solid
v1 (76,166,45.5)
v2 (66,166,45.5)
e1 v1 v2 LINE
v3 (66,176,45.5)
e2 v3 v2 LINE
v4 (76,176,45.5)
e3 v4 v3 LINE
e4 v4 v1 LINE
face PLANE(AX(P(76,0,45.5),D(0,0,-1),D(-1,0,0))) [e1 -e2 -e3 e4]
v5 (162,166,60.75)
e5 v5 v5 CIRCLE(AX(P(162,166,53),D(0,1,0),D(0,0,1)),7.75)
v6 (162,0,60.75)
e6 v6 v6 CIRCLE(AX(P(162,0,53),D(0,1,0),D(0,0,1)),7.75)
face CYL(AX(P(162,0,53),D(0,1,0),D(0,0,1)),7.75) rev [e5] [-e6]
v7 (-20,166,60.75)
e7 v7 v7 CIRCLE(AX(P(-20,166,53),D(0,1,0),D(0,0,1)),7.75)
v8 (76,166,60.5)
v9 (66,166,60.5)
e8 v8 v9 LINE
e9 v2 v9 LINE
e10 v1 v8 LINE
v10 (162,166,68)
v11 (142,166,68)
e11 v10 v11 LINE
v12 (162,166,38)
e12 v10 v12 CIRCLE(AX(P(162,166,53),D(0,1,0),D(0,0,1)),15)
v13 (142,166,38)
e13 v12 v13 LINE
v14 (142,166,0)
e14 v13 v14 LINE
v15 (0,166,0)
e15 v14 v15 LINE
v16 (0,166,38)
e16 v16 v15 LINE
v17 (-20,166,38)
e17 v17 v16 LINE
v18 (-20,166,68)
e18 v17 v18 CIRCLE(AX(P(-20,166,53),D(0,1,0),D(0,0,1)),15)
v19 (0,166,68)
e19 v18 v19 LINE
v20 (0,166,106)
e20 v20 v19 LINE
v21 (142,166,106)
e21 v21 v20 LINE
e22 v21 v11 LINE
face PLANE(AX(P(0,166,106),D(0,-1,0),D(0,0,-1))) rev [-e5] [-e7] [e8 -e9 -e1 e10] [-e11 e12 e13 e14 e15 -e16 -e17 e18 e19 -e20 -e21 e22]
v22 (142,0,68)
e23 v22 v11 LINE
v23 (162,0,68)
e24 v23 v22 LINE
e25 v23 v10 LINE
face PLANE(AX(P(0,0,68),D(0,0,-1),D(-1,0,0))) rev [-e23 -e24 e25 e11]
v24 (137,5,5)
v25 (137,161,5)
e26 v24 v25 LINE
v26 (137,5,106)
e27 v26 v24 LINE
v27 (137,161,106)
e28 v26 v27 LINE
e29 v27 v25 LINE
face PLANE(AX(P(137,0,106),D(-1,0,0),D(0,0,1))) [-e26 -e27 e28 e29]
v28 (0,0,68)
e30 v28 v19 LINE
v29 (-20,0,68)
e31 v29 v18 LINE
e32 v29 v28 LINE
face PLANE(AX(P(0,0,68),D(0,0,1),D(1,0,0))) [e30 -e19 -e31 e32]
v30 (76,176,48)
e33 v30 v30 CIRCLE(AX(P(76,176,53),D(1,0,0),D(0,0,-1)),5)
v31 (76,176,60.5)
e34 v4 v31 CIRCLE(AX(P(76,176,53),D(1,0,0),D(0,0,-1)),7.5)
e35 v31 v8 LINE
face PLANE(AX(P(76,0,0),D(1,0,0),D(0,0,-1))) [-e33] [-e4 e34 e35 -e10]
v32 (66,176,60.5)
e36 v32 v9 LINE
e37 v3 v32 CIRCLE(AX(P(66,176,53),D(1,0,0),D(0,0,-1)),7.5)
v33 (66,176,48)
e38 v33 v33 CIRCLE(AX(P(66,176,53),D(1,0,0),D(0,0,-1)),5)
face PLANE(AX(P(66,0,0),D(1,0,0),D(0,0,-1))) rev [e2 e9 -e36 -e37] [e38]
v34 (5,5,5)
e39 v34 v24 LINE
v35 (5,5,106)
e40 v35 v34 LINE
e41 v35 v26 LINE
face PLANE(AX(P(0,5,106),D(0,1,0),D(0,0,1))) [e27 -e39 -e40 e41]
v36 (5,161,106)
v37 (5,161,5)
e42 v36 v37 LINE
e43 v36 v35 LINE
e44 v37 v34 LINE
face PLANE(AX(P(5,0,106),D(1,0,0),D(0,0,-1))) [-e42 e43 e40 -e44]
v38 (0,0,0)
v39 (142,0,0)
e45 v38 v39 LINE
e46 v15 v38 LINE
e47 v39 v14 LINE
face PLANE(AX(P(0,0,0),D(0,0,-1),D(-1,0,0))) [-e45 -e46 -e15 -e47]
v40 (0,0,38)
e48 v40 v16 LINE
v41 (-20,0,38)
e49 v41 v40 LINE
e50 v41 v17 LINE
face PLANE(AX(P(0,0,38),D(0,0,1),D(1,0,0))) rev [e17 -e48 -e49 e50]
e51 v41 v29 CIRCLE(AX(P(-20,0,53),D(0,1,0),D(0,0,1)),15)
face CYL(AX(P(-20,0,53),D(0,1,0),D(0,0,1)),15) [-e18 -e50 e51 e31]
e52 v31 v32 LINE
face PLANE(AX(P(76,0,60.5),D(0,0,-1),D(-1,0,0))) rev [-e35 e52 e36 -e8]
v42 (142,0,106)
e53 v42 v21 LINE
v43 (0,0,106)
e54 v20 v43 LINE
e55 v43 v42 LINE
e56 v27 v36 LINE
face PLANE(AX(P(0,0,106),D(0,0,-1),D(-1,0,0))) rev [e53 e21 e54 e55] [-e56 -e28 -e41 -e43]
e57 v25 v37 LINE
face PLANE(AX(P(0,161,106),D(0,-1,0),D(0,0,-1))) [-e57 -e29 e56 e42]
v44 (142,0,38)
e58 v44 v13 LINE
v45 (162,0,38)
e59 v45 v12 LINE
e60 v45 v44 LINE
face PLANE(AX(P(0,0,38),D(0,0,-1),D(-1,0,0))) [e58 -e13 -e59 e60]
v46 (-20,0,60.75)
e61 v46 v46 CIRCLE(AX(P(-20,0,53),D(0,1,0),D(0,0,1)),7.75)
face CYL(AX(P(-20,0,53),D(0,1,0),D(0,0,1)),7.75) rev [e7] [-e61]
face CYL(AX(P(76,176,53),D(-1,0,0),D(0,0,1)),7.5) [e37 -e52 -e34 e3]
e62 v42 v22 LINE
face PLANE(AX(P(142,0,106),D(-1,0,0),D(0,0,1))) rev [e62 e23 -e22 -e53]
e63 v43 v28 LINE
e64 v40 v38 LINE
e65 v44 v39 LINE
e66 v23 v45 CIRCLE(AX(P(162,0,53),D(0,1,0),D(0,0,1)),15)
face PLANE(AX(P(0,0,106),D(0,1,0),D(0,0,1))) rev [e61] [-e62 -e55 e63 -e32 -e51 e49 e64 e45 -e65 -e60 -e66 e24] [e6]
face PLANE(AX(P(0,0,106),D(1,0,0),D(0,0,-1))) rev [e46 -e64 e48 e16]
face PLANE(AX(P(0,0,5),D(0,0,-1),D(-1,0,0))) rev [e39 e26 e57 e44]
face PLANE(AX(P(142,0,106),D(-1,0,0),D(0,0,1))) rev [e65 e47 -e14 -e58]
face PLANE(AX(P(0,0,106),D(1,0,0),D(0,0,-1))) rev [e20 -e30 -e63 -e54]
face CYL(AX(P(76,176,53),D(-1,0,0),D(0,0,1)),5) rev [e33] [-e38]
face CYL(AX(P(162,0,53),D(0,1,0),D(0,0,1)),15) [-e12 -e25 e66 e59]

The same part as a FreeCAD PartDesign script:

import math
import FreeCAD as App
import Part
import Sketcher

V = App.Vector
Q = App.Units.Quantity


def faces_at(feature, points):
    """Names of the faces that lie closest to the given points."""
    faces = feature.Shape.Faces
    near = lambda p: min(range(len(faces)), key=lambda i: faces[i].distToShape(Part.Vertex(*p))[0])
    return sorted({f"Face{near(p) + 1}" for p in points})

doc = App.newDocument("Part")
body = doc.addObject("PartDesign::Body", "Body")

# Sketch on XY plane
sketch1 = body.newObject("Sketcher::SketchObject", "Sketch")
sketch1.AttachmentSupport = (doc.getObject("XY_Plane"), [""])
sketch1.MapMode = "FlatFace"
sketch1.addGeometry([
    Part.LineSegment(V(0, 166, 0), V(0, 0, 0)),
    Part.LineSegment(V(0, 0, 0), V(142, 0, 0)),
    Part.LineSegment(V(142, 0, 0), V(142, 166, 0)),
    Part.LineSegment(V(142, 166, 0), V(0, 166, 0)),
], False)
sketch1.addConstraint([
    Sketcher.Constraint("Coincident", 0, 2, 1, 1),
    Sketcher.Constraint("Coincident", 1, 2, 2, 1),
    Sketcher.Constraint("Coincident", 2, 2, 3, 1),
    Sketcher.Constraint("Coincident", 3, 2, 0, 1),
    Sketcher.Constraint("Vertical", 0),
    Sketcher.Constraint("Horizontal", 1),
    Sketcher.Constraint("Vertical", 2),
    Sketcher.Constraint("Horizontal", 3),
    Sketcher.Constraint("Coincident", 0, 2, -1, 1),
    Sketcher.Constraint("DistanceX", 1, 1, 1, 2, Q("142 mm")),
    Sketcher.Constraint("DistanceY", 0, 2, 0, 1, Q("166 mm")),
])
pad1 = body.newObject("PartDesign::Pad", "Pad")
pad1.Profile = sketch1
pad1.Length = 106
doc.recompute()

thickness = body.newObject("PartDesign::Thickness", "Thickness")
thickness.Base = (pad1, faces_at(pad1, [(71, 83, 106)]))
thickness.Value = 5
thickness.Reversed = True
thickness.Join = "Intersection"

# Sketch on XZ plane
sketch2 = body.newObject("Sketcher::SketchObject", "Sketch001")
sketch2.AttachmentSupport = (doc.getObject("XZ_Plane"), [""])
sketch2.MapMode = "FlatFace"
sketch2.AttachmentOffset = App.Placement(V(0, 0, -166), App.Rotation())
sketch2.addGeometry([
    Part.ArcOfCircle(Part.Circle(V(-20, 53, 0), V(0, 0, 1), 15), math.radians(90), math.radians(270)),  # 0
    Part.LineSegment(V(-20, 68, 0), V(0, 68, 0)),  # 1
    Part.LineSegment(V(0, 68, 0), V(0, 38, 0)),  # 2
    Part.LineSegment(V(0, 38, 0), V(-20, 38, 0)),  # 3
    Part.Circle(V(-20, 53, 0), V(0, 0, 1), 7.75),  # 4
    Part.LineSegment(V(162, 38, 0), V(142, 38, 0)),  # 5
    Part.LineSegment(V(142, 38, 0), V(142, 68, 0)),  # 6
    Part.LineSegment(V(142, 68, 0), V(162, 68, 0)),  # 7
    Part.ArcOfCircle(Part.Circle(V(162, 53, 0), V(0, 0, 1), 15), math.radians(-90), math.radians(90)),  # 8
    Part.Circle(V(162, 53, 0), V(0, 0, 1), 7.75),  # 9
], False)
sketch2.addConstraint([
    Sketcher.Constraint("Tangent", 0, 1, 1, 1),
    Sketcher.Constraint("Coincident", 1, 2, 2, 1),
    Sketcher.Constraint("Coincident", 2, 2, 3, 1),
    Sketcher.Constraint("Tangent", 3, 2, 0, 2),
    Sketcher.Constraint("Coincident", 5, 2, 6, 1),
    Sketcher.Constraint("Coincident", 6, 2, 7, 1),
    Sketcher.Constraint("Tangent", 7, 2, 8, 2),
    Sketcher.Constraint("Tangent", 8, 1, 5, 1),
    Sketcher.Constraint("Horizontal", 1),
    Sketcher.Constraint("Vertical", 2),
    Sketcher.Constraint("Horizontal", 3),
    Sketcher.Constraint("Horizontal", 5),
    Sketcher.Constraint("Vertical", 6),
    Sketcher.Constraint("Horizontal", 7),
    Sketcher.Constraint("Coincident", 4, 3, 0, 3),
    Sketcher.Constraint("Coincident", 9, 3, 8, 3),
    Sketcher.Constraint("Equal", 0, 8),
    Sketcher.Constraint("Equal", 4, 9),
    Sketcher.Constraint("PointOnObject", 1, 2, -2),
    Sketcher.Constraint("Horizontal", 4, 3, 8, 3),
    Sketcher.Constraint("Equal", 3, 5),
    Sketcher.Constraint("Radius", 0, Q("15 mm")),
    Sketcher.Constraint("Diameter", 4, Q("15.5 mm")),
    Sketcher.Constraint("DistanceX", 1, 1, 1, 2, Q("20 mm")),
    Sketcher.Constraint("DistanceY", -1, 1, 0, 3, Q("53 mm")),
    Sketcher.Constraint("DistanceX", -1, 1, 8, 3, Q("162 mm")),
])
pad2 = body.newObject("PartDesign::Pad", "Pad001")
pad2.Profile = sketch2
pad2.Length = 166

# Sketch on YZ plane
sketch3 = body.newObject("Sketcher::SketchObject", "Sketch002")
sketch3.AttachmentSupport = (doc.getObject("YZ_Plane"), [""])
sketch3.MapMode = "FlatFace"
sketch3.AttachmentOffset = App.Placement(V(0, 0, 71), App.Rotation())
sketch3.addGeometry([
    Part.ArcOfCircle(Part.Circle(V(176, 53, 0), V(0, 0, 1), 7.5), math.radians(-90), math.radians(90)),  # 0
    Part.LineSegment(V(176, 60.5, 0), V(166, 60.5, 0)),  # 1
    Part.LineSegment(V(166, 60.5, 0), V(166, 45.5, 0)),  # 2
    Part.LineSegment(V(166, 45.5, 0), V(176, 45.5, 0)),  # 3
    Part.Circle(V(176, 53, 0), V(0, 0, 1), 5),  # 4
], False)
sketch3.addConstraint([
    Sketcher.Constraint("Tangent", 0, 2, 1, 1),
    Sketcher.Constraint("Coincident", 1, 2, 2, 1),
    Sketcher.Constraint("Coincident", 2, 2, 3, 1),
    Sketcher.Constraint("Tangent", 3, 2, 0, 1),
    Sketcher.Constraint("Horizontal", 1),
    Sketcher.Constraint("Vertical", 2),
    Sketcher.Constraint("Horizontal", 3),
    Sketcher.Constraint("Coincident", 4, 3, 0, 3),
    Sketcher.Constraint("Diameter", 4, Q("10 mm")),
    Sketcher.Constraint("Radius", 0, Q("7.5 mm")),
    Sketcher.Constraint("DistanceX", 1, 2, 1, 1, Q("10 mm")),
    Sketcher.Constraint("DistanceX", -1, 1, 0, 3, Q("176 mm")),
    Sketcher.Constraint("DistanceY", -1, 1, 0, 3, Q("53 mm")),
])
pad3 = body.newObject("PartDesign::Pad", "Pad002")
pad3.Profile = sketch3
pad3.Length = 10
pad3.Midplane = True

doc.recompute()
